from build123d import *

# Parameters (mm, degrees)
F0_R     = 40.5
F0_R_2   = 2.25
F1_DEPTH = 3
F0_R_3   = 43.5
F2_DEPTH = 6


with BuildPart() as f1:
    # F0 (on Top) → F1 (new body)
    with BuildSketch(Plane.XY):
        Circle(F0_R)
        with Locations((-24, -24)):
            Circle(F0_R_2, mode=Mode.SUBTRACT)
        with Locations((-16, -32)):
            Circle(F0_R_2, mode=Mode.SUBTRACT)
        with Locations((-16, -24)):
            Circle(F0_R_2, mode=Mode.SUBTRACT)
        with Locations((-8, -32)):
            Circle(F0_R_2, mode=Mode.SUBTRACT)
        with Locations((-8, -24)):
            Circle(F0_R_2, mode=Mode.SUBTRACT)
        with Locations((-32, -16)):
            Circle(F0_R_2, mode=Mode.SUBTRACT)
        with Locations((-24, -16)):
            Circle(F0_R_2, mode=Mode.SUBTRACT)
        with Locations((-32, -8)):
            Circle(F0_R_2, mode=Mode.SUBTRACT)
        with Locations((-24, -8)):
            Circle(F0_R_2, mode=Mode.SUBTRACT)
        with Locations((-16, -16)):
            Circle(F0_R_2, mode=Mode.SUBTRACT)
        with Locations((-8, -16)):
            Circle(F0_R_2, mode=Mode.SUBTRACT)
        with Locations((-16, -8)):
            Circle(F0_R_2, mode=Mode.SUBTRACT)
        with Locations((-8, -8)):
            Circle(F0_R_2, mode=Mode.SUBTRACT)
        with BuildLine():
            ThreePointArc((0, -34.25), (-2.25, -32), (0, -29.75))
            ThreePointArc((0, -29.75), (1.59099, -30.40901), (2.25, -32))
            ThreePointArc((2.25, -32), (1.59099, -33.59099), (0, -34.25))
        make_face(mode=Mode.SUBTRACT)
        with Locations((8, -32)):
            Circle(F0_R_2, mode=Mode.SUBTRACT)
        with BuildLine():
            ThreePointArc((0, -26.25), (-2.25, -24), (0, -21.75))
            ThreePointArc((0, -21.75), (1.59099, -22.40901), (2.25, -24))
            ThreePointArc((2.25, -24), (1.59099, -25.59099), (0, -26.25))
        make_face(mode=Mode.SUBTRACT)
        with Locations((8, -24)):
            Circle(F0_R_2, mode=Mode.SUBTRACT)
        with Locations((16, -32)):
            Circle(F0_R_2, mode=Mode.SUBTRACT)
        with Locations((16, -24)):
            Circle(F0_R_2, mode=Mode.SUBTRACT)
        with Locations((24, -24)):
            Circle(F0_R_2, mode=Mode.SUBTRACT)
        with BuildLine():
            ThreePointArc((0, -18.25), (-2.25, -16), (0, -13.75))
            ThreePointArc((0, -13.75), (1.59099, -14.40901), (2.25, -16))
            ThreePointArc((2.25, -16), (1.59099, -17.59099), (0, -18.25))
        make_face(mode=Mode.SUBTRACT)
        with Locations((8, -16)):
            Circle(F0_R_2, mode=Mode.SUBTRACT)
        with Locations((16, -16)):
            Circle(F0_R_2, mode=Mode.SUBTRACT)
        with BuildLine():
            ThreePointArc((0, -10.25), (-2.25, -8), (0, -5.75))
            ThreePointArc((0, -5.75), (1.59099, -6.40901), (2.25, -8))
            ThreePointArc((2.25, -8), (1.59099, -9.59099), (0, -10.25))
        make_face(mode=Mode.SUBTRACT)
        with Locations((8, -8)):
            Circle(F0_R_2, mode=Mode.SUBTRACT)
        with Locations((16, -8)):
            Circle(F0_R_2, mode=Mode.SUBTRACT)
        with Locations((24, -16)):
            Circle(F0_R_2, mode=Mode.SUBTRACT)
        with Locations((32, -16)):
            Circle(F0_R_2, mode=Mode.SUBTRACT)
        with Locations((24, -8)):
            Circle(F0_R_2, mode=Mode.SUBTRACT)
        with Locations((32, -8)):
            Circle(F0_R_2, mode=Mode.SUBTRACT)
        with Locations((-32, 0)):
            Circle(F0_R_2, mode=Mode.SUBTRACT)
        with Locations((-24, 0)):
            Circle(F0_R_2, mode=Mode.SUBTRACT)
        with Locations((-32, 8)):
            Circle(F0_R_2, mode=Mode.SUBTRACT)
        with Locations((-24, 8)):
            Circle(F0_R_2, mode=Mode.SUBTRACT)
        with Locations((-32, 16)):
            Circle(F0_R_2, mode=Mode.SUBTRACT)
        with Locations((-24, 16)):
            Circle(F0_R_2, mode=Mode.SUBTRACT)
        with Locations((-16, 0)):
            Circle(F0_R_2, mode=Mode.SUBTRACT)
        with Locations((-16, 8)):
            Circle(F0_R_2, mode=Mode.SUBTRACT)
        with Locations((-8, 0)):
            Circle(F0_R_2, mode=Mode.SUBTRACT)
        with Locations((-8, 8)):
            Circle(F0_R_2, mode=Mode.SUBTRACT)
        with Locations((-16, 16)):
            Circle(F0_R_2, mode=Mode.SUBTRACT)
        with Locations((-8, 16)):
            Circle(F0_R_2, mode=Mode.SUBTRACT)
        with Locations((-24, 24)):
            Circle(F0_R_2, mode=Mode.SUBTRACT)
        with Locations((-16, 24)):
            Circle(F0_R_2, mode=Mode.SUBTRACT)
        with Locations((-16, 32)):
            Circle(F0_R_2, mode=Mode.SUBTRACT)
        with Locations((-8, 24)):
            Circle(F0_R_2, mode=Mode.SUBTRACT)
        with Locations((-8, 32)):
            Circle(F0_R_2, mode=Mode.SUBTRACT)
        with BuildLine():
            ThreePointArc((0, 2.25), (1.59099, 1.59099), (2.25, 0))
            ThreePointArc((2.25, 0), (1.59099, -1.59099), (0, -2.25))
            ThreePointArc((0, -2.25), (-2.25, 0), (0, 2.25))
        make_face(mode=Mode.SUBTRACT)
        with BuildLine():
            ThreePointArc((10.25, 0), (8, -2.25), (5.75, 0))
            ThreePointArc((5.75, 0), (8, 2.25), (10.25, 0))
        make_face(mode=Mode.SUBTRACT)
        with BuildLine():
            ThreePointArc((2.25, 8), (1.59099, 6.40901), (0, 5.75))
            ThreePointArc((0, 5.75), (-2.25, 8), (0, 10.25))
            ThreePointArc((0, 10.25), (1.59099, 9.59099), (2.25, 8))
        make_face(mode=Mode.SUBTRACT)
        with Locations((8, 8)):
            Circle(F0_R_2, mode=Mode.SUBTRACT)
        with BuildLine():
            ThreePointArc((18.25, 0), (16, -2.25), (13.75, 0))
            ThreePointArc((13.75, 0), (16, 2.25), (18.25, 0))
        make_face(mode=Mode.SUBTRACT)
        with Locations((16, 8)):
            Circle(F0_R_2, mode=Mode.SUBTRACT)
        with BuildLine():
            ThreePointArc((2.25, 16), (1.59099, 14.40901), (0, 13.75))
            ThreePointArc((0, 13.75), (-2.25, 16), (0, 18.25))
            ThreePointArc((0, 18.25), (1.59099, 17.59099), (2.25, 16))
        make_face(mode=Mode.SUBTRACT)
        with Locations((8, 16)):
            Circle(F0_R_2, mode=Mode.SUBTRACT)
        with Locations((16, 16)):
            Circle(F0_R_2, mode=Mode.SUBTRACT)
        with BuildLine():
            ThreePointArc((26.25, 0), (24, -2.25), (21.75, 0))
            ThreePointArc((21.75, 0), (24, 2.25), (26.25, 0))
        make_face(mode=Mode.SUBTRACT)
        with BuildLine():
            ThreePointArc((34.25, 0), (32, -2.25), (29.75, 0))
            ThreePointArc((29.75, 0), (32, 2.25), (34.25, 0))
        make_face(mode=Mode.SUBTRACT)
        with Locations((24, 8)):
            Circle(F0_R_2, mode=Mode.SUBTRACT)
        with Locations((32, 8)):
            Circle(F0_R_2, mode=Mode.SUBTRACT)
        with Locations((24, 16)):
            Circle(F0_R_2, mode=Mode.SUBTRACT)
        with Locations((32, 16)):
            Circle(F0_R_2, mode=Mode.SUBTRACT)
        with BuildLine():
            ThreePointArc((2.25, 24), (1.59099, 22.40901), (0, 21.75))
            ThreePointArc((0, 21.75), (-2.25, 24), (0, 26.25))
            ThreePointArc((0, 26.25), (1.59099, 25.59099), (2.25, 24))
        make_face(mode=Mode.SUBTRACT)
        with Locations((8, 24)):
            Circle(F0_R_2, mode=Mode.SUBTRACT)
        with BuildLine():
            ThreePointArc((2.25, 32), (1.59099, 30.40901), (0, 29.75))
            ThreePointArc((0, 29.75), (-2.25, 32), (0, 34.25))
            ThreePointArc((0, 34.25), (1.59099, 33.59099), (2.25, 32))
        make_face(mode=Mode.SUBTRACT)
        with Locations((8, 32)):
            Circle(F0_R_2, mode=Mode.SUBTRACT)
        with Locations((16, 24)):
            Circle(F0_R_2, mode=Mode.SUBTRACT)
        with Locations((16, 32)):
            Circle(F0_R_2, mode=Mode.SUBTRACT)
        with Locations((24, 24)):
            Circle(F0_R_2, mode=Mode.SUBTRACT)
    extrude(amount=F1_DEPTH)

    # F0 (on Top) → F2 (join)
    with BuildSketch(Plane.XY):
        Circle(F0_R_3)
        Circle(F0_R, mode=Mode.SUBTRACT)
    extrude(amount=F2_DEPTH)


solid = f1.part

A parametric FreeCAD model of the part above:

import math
import FreeCAD as App
import Part
import Sketcher

doc = App.newDocument("Part")
body = doc.addObject("PartDesign::Body", "Body")

# Sketch on XY plane
sketch1 = doc.addObject("Sketcher::SketchObject", "Sketch")
body.addObject(sketch1)
sketch1.AttachmentSupport = (doc.XY_Plane, [""])
sketch1.MapMode = "FlatFace"
sketch1.addGeometry(Part.Circle(App.Vector(0, 0, 0), App.Vector(0, 0, 1), 40.5), False)
sketch1.addGeometry(Part.Circle(App.Vector(-24, -24, 0), App.Vector(0, 0, 1), 2.25), False)
sketch1.addGeometry(Part.Circle(App.Vector(-16, -32, 0), App.Vector(0, 0, 1), 2.25), False)
sketch1.addGeometry(Part.Circle(App.Vector(-8, -32, 0), App.Vector(0, 0, 1), 2.25), False)
sketch1.addGeometry(Part.Circle(App.Vector(-16, -24, 0), App.Vector(0, 0, 1), 2.25), False)
sketch1.addGeometry(Part.Circle(App.Vector(-8, -24, 0), App.Vector(0, 0, 1), 2.25), False)
sketch1.addGeometry(Part.Circle(App.Vector(-32, -16, 0), App.Vector(0, 0, 1), 2.25), False)
sketch1.addGeometry(Part.Circle(App.Vector(-24, -16, 0), App.Vector(0, 0, 1), 2.25), False)
sketch1.addGeometry(Part.Circle(App.Vector(-32, -8, 0), App.Vector(0, 0, 1), 2.25), False)
sketch1.addGeometry(Part.Circle(App.Vector(-24, -8, 0), App.Vector(0, 0, 1), 2.25), False)
sketch1.addGeometry(Part.Circle(App.Vector(-16, -16, 0), App.Vector(0, 0, 1), 2.25), False)
sketch1.addGeometry(Part.Circle(App.Vector(-8, -16, 0), App.Vector(0, 0, 1), 2.25), False)
sketch1.addGeometry(Part.Circle(App.Vector(-16, -8, 0), App.Vector(0, 0, 1), 2.25), False)
sketch1.addGeometry(Part.Circle(App.Vector(-8, -8, 0), App.Vector(0, 0, 1), 2.25), False)
sketch1.addGeometry(Part.ArcOfCircle(Part.Circle(App.Vector(-0.000001, -31.999999, 0), App.Vector(0, 0, 1), 2.250001), math.radians(-89.999978), math.radians(-0.000022)), False)
sketch1.addGeometry(Part.ArcOfCircle(Part.Circle(App.Vector(0, -32, 0), App.Vector(0, 0, 1), 2.25), math.radians(90), math.radians(270)), False)
sketch1.addGeometry(Part.ArcOfCircle(Part.Circle(App.Vector(-0.000001, -32.000001, 0), App.Vector(0, 0, 1), 2.250001), math.radians(0.000022), math.radians(89.999978)), False)
sketch1.addGeometry(Part.Circle(App.Vector(8, -32, 0), App.Vector(0, 0, 1), 2.25), False)
sketch1.addGeometry(Part.Circle(App.Vector(16, -32, 0), App.Vector(0, 0, 1), 2.25), False)
sketch1.addGeometry(Part.ArcOfCircle(Part.Circle(App.Vector(-0.000001, -23.999999, 0), App.Vector(0, 0, 1), 2.250001), math.radians(-89.999978), math.radians(-0.000022)), False)
sketch1.addGeometry(Part.ArcOfCircle(Part.Circle(App.Vector(0, -24, 0), App.Vector(0, 0, 1), 2.25), math.radians(90), math.radians(270)), False)
sketch1.addGeometry(Part.ArcOfCircle(Part.Circle(App.Vector(-0.000001, -24.000001, 0), App.Vector(0, 0, 1), 2.250001), math.radians(0.000022), math.radians(89.999978)), False)
sketch1.addGeometry(Part.Circle(App.Vector(8, -24, 0), App.Vector(0, 0, 1), 2.25), False)
sketch1.addGeometry(Part.Circle(App.Vector(16, -24, 0), App.Vector(0, 0, 1), 2.25), False)
sketch1.addGeometry(Part.Circle(App.Vector(24, -24, 0), App.Vector(0, 0, 1), 2.25), False)
sketch1.addGeometry(Part.ArcOfCircle(Part.Circle(App.Vector(-0.000001, -15.999999, 0), App.Vector(0, 0, 1), 2.250001), math.radians(-89.999978), math.radians(-0.000022)), False)
sketch1.addGeometry(Part.ArcOfCircle(Part.Circle(App.Vector(0, -16, 0), App.Vector(0, 0, 1), 2.25), math.radians(90), math.radians(270)), False)
sketch1.addGeometry(Part.ArcOfCircle(Part.Circle(App.Vector(-0.000001, -16.000001, 0), App.Vector(0, 0, 1), 2.250001), math.radians(0.000022), math.radians(89.999978)), False)
sketch1.addGeometry(Part.Circle(App.Vector(8, -16, 0), App.Vector(0, 0, 1), 2.25), False)
sketch1.addGeometry(Part.Circle(App.Vector(16, -16, 0), App.Vector(0, 0, 1), 2.25), False)
sketch1.addGeometry(Part.ArcOfCircle(Part.Circle(App.Vector(-0.000001, -7.999999, 0), App.Vector(0, 0, 1), 2.250001), math.radians(-89.999978), math.radians(-0.000022)), False)
sketch1.addGeometry(Part.ArcOfCircle(Part.Circle(App.Vector(0, -8, 0), App.Vector(0, 0, 1), 2.25), math.radians(90), math.radians(270)), False)
sketch1.addGeometry(Part.ArcOfCircle(Part.Circle(App.Vector(-0.000001, -8.000001, 0), App.Vector(0, 0, 1), 2.250001), math.radians(0.000022), math.radians(89.999978)), False)
sketch1.addGeometry(Part.Circle(App.Vector(8, -8, 0), App.Vector(0, 0, 1), 2.25), False)
sketch1.addGeometry(Part.Circle(App.Vector(16, -8, 0), App.Vector(0, 0, 1), 2.25), False)
sketch1.addGeometry(Part.Circle(App.Vector(24, -16, 0), App.Vector(0, 0, 1), 2.25), False)
sketch1.addGeometry(Part.Circle(App.Vector(32, -16, 0), App.Vector(0, 0, 1), 2.25), False)
sketch1.addGeometry(Part.Circle(App.Vector(24, -8, 0), App.Vector(0, 0, 1), 2.25), False)
sketch1.addGeometry(Part.Circle(App.Vector(32, -8, 0), App.Vector(0, 0, 1), 2.25), False)
sketch1.addGeometry(Part.Circle(App.Vector(-32, 0, 0), App.Vector(0, 0, 1), 2.25), False)
sketch1.addGeometry(Part.Circle(App.Vector(-32, 8, 0), App.Vector(0, 0, 1), 2.25), False)
sketch1.addGeometry(Part.Circle(App.Vector(-24, 0, 0), App.Vector(0, 0, 1), 2.25), False)
sketch1.addGeometry(Part.Circle(App.Vector(-24, 8, 0), App.Vector(0, 0, 1), 2.25), False)
sketch1.addGeometry(Part.Circle(App.Vector(-32, 16, 0), App.Vector(0, 0, 1), 2.25), False)
sketch1.addGeometry(Part.Circle(App.Vector(-24, 16, 0), App.Vector(0, 0, 1), 2.25), False)
sketch1.addGeometry(Part.Circle(App.Vector(-16, 0, 0), App.Vector(0, 0, 1), 2.25), False)
sketch1.addGeometry(Part.Circle(App.Vector(-16, 8, 0), App.Vector(0, 0, 1), 2.25), False)
sketch1.addGeometry(Part.Circle(App.Vector(-8, 0, 0), App.Vector(0, 0, 1), 2.25), False)
sketch1.addGeometry(Part.Circle(App.Vector(-8, 8, 0), App.Vector(0, 0, 1), 2.25), False)
sketch1.addGeometry(Part.Circle(App.Vector(-16, 16, 0), App.Vector(0, 0, 1), 2.25), False)
sketch1.addGeometry(Part.Circle(App.Vector(-8, 16, 0), App.Vector(0, 0, 1), 2.25), False)
sketch1.addGeometry(Part.Circle(App.Vector(-24, 24, 0), App.Vector(0, 0, 1), 2.25), False)
sketch1.addGeometry(Part.Circle(App.Vector(-16, 24, 0), App.Vector(0, 0, 1), 2.25), False)
sketch1.addGeometry(Part.Circle(App.Vector(-8, 24, 0), App.Vector(0, 0, 1), 2.25), False)
sketch1.addGeometry(Part.Circle(App.Vector(-16, 32, 0), App.Vector(0, 0, 1), 2.25), False)
sketch1.addGeometry(Part.Circle(App.Vector(-8, 32, 0), App.Vector(0, 0, 1), 2.25), False)
sketch1.addGeometry(Part.ArcOfCircle(Part.Circle(App.Vector(0, 0, 0), App.Vector(0, 0, 1), 2.25), math.radians(90), math.radians(270)), False)
sketch1.addGeometry(Part.ArcOfCircle(Part.Circle(App.Vector(-0.000001, -0.000001, 0), App.Vector(0, 0, 1), 2.250001), math.radians(0.000022), math.radians(89.999978)), False)
sketch1.addGeometry(Part.ArcOfCircle(Part.Circle(App.Vector(-0.000001, 0.000001, 0), App.Vector(0, 0, 1), 2.250001), math.radians(-89.999978), math.radians(-0.000022)), False)
sketch1.addGeometry(Part.Circle(App.Vector(8, 0, 0), App.Vector(0, 0, 1), 2.25), False)
sketch1.addGeometry(Part.ArcOfCircle(Part.Circle(App.Vector(-0.000001, 7.999999, 0), App.Vector(0, 0, 1), 2.250001), math.radians(0.000022), math.radians(89.999978)), False)
sketch1.addGeometry(Part.ArcOfCircle(Part.Circle(App.Vector(-0.000001, 8.000001, 0), App.Vector(0, 0, 1), 2.250001), math.radians(-89.999978), math.radians(-0.000022)), False)
sketch1.addGeometry(Part.ArcOfCircle(Part.Circle(App.Vector(0, 8, 0), App.Vector(0, 0, 1), 2.25), math.radians(90), math.radians(270)), False)
sketch1.addGeometry(Part.Circle(App.Vector(8, 8, 0), App.Vector(0, 0, 1), 2.25), False)
sketch1.addGeometry(Part.Circle(App.Vector(16, 0, 0), App.Vector(0, 0, 1), 2.25), False)
sketch1.addGeometry(Part.Circle(App.Vector(16, 8, 0), App.Vector(0, 0, 1), 2.25), False)
sketch1.addGeometry(Part.ArcOfCircle(Part.Circle(App.Vector(-0.000001, 15.999999, 0), App.Vector(0, 0, 1), 2.250001), math.radians(0.000022), math.radians(89.999978)), False)
sketch1.addGeometry(Part.ArcOfCircle(Part.Circle(App.Vector(-0.000001, 16.000001, 0), App.Vector(0, 0, 1), 2.250001), math.radians(-89.999978), math.radians(-0.000022)), False)
sketch1.addGeometry(Part.ArcOfCircle(Part.Circle(App.Vector(0, 16, 0), App.Vector(0, 0, 1), 2.25), math.radians(90), math.radians(270)), False)
sketch1.addGeometry(Part.Circle(App.Vector(8, 16, 0), App.Vector(0, 0, 1), 2.25), False)
sketch1.addGeometry(Part.Circle(App.Vector(16, 16, 0), App.Vector(0, 0, 1), 2.25), False)
sketch1.addGeometry(Part.Circle(App.Vector(24, 0, 0), App.Vector(0, 0, 1), 2.25), False)
sketch1.addGeometry(Part.Circle(App.Vector(24, 8, 0), App.Vector(0, 0, 1), 2.25), False)
sketch1.addGeometry(Part.Circle(App.Vector(32, 0, 0), App.Vector(0, 0, 1), 2.25), False)
sketch1.addGeometry(Part.Circle(App.Vector(32, 8, 0), App.Vector(0, 0, 1), 2.25), False)
sketch1.addGeometry(Part.Circle(App.Vector(24, 16, 0), App.Vector(0, 0, 1), 2.25), False)
sketch1.addGeometry(Part.Circle(App.Vector(32, 16, 0), App.Vector(0, 0, 1), 2.25), False)
sketch1.addGeometry(Part.ArcOfCircle(Part.Circle(App.Vector(-0.000001, 23.999999, 0), App.Vector(0, 0, 1), 2.250001), math.radians(0.000022), math.radians(89.999978)), False)
sketch1.addGeometry(Part.ArcOfCircle(Part.Circle(App.Vector(-0.000001, 24.000001, 0), App.Vector(0, 0, 1), 2.250001), math.radians(-89.999978), math.radians(-0.000022)), False)
sketch1.addGeometry(Part.ArcOfCircle(Part.Circle(App.Vector(0, 24, 0), App.Vector(0, 0, 1), 2.25), math.radians(90), math.radians(270)), False)
sketch1.addGeometry(Part.Circle(App.Vector(8, 24, 0), App.Vector(0, 0, 1), 2.25), False)
sketch1.addGeometry(Part.Circle(App.Vector(16, 24, 0), App.Vector(0, 0, 1), 2.25), False)
sketch1.addGeometry(Part.ArcOfCircle(Part.Circle(App.Vector(-0.000001, 31.999999, 0), App.Vector(0, 0, 1), 2.250001), math.radians(0.000022), math.radians(89.999978)), False)
sketch1.addGeometry(Part.ArcOfCircle(Part.Circle(App.Vector(-0.000001, 32.000001, 0), App.Vector(0, 0, 1), 2.250001), math.radians(-89.999978), math.radians(-0.000022)), False)
sketch1.addGeometry(Part.ArcOfCircle(Part.Circle(App.Vector(0, 32, 0), App.Vector(0, 0, 1), 2.25), math.radians(90), math.radians(270)), False)
sketch1.addGeometry(Part.Circle(App.Vector(8, 32, 0), App.Vector(0, 0, 1), 2.25), False)
sketch1.addGeometry(Part.Circle(App.Vector(16, 32, 0), App.Vector(0, 0, 1), 2.25), False)
sketch1.addGeometry(Part.Circle(App.Vector(24, 24, 0), App.Vector(0, 0, 1), 2.25), False)
sketch1.addConstraint(Sketcher.Constraint("Tangent", 14, 1, 15, 2))
sketch1.addConstraint(Sketcher.Constraint("Tangent", 15, 1, 16, 2))
sketch1.addConstraint(Sketcher.Constraint("Tangent", 16, 1, 14, 2))
sketch1.addConstraint(Sketcher.Constraint("Tangent", 19, 1, 20, 2))
sketch1.addConstraint(Sketcher.Constraint("Tangent", 20, 1, 21, 2))
sketch1.addConstraint(Sketcher.Constraint("Tangent", 21, 1, 19, 2))
sketch1.addConstraint(Sketcher.Constraint("Tangent", 25, 1, 26, 2))
sketch1.addConstraint(Sketcher.Constraint("Tangent", 26, 1, 27, 2))
sketch1.addConstraint(Sketcher.Constraint("Tangent", 27, 1, 25, 2))
sketch1.addConstraint(Sketcher.Constraint("Tangent", 30, 1, 31, 2))
sketch1.addConstraint(Sketcher.Constraint("Tangent", 31, 1, 32, 2))
sketch1.addConstraint(Sketcher.Constraint("Tangent", 32, 1, 30, 2))
sketch1.addConstraint(Sketcher.Constraint("Tangent", 56, 1, 57, 2))
sketch1.addConstraint(Sketcher.Constraint("Tangent", 57, 1, 58, 2))
sketch1.addConstraint(Sketcher.Constraint("Tangent", 58, 1, 56, 2))
sketch1.addConstraint(Sketcher.Constraint("Tangent", 60, 1, 61, 2))
sketch1.addConstraint(Sketcher.Constraint("Tangent", 61, 1, 62, 2))
sketch1.addConstraint(Sketcher.Constraint("Tangent", 62, 1, 60, 2))
sketch1.addConstraint(Sketcher.Constraint("Tangent", 66, 1, 67, 2))
sketch1.addConstraint(Sketcher.Constraint("Tangent", 67, 1, 68, 2))
sketch1.addConstraint(Sketcher.Constraint("Tangent", 68, 1, 66, 2))
sketch1.addConstraint(Sketcher.Constraint("Tangent", 77, 1, 78, 2))
sketch1.addConstraint(Sketcher.Constraint("Tangent", 78, 1, 79, 2))
sketch1.addConstraint(Sketcher.Constraint("Tangent", 79, 1, 77, 2))
sketch1.addConstraint(Sketcher.Constraint("Tangent", 82, 1, 83, 2))
sketch1.addConstraint(Sketcher.Constraint("Tangent", 83, 1, 84, 2))
sketch1.addConstraint(Sketcher.Constraint("Tangent", 84, 1, 82, 2))
sketch1.addConstraint(Sketcher.Constraint("Coincident", 0, 3, -1, 1))
sketch1.addConstraint(Sketcher.Constraint("Coincident", 56, 3, -1, 1))
sketch1.addConstraint(Sketcher.Constraint("Equal", 1, 2))
sketch1.addConstraint(Sketcher.Constraint("Equal", 2, 3))
sketch1.addConstraint(Sketcher.Constraint("Equal", 3, 4))
sketch1.addConstraint(Sketcher.Constraint("Equal", 4, 5))
sketch1.addConstraint(Sketcher.Constraint("Equal", 5, 6))
sketch1.addConstraint(Sketcher.Constraint("Equal", 6, 7))
sketch1.addConstraint(Sketcher.Constraint("Equal", 7, 8))
sketch1.addConstraint(Sketcher.Constraint("Equal", 8, 9))
sketch1.addConstraint(Sketcher.Constraint("Equal", 9, 10))
sketch1.addConstraint(Sketcher.Constraint("Equal", 10, 11))
sketch1.addConstraint(Sketcher.Constraint("Equal", 11, 12))
sketch1.addConstraint(Sketcher.Constraint("Equal", 12, 13))
sketch1.addConstraint(Sketcher.Constraint("Equal", 13, 14))
sketch1.addConstraint(Sketcher.Constraint("Equal", 16, 17))
sketch1.addConstraint(Sketcher.Constraint("Equal", 17, 18))
sketch1.addConstraint(Sketcher.Constraint("Equal", 18, 19))
sketch1.addConstraint(Sketcher.Constraint("Equal", 21, 22))
sketch1.addConstraint(Sketcher.Constraint("Equal", 22, 23))
sketch1.addConstraint(Sketcher.Constraint("Equal", 23, 24))
sketch1.addConstraint(Sketcher.Constraint("Equal", 24, 25))
sketch1.addConstraint(Sketcher.Constraint("Equal", 27, 28))
sketch1.addConstraint(Sketcher.Constraint("Equal", 28, 29))
sketch1.addConstraint(Sketcher.Constraint("Equal", 29, 30))
sketch1.addConstraint(Sketcher.Constraint("Equal", 32, 33))
sketch1.addConstraint(Sketcher.Constraint("Equal", 33, 34))
sketch1.addConstraint(Sketcher.Constraint("Equal", 34, 35))
sketch1.addConstraint(Sketcher.Constraint("Equal", 35, 36))
sketch1.addConstraint(Sketcher.Constraint("Equal", 36, 37))
sketch1.addConstraint(Sketcher.Constraint("Equal", 37, 38))
sketch1.addConstraint(Sketcher.Constraint("Equal", 38, 39))
sketch1.addConstraint(Sketcher.Constraint("Equal", 39, 40))
sketch1.addConstraint(Sketcher.Constraint("Equal", 40, 41))
sketch1.addConstraint(Sketcher.Constraint("Equal", 41, 42))
sketch1.addConstraint(Sketcher.Constraint("Equal", 42, 43))
sketch1.addConstraint(Sketcher.Constraint("Equal", 43, 44))
sketch1.addConstraint(Sketcher.Constraint("Equal", 44, 45))
sketch1.addConstraint(Sketcher.Constraint("Equal", 45, 46))
sketch1.addConstraint(Sketcher.Constraint("Equal", 46, 47))
sketch1.addConstraint(Sketcher.Constraint("Equal", 47, 48))
sketch1.addConstraint(Sketcher.Constraint("Equal", 48, 49))
sketch1.addConstraint(Sketcher.Constraint("Equal", 49, 50))
sketch1.addConstraint(Sketcher.Constraint("Equal", 50, 51))
sketch1.addConstraint(Sketcher.Constraint("Equal", 51, 52))
sketch1.addConstraint(Sketcher.Constraint("Equal", 52, 53))
sketch1.addConstraint(Sketcher.Constraint("Equal", 53, 54))
sketch1.addConstraint(Sketcher.Constraint("Equal", 54, 55))
sketch1.addConstraint(Sketcher.Constraint("Equal", 55, 56))
sketch1.addConstraint(Sketcher.Constraint("Equal", 58, 59))
sketch1.addConstraint(Sketcher.Constraint("Equal", 59, 60))
sketch1.addConstraint(Sketcher.Constraint("Equal", 62, 63))
sketch1.addConstraint(Sketcher.Constraint("Equal", 63, 64))
sketch1.addConstraint(Sketcher.Constraint("Equal", 64, 65))
sketch1.addConstraint(Sketcher.Constraint("Equal", 65, 66))
sketch1.addConstraint(Sketcher.Constraint("Equal", 68, 69))
sketch1.addConstraint(Sketcher.Constraint("Equal", 69, 70))
sketch1.addConstraint(Sketcher.Constraint("Equal", 70, 71))
sketch1.addConstraint(Sketcher.Constraint("Equal", 71, 72))
sketch1.addConstraint(Sketcher.Constraint("Equal", 72, 73))
sketch1.addConstraint(Sketcher.Constraint("Equal", 73, 74))
sketch1.addConstraint(Sketcher.Constraint("Equal", 74, 75))
sketch1.addConstraint(Sketcher.Constraint("Equal", 75, 76))
sketch1.addConstraint(Sketcher.Constraint("Equal", 76, 77))
sketch1.addConstraint(Sketcher.Constraint("Equal", 79, 80))
sketch1.addConstraint(Sketcher.Constraint("Equal", 80, 81))
sketch1.addConstraint(Sketcher.Constraint("Equal", 81, 82))
sketch1.addConstraint(Sketcher.Constraint("Equal", 84, 85))
sketch1.addConstraint(Sketcher.Constraint("Equal", 85, 86))
sketch1.addConstraint(Sketcher.Constraint("Equal", 86, 87))
sketch1.addConstraint(Sketcher.Constraint("Symmetric", 38, 3, 40, 3, -1, 1))
sketch1.addConstraint(Sketcher.Constraint("Symmetric", 37, 3, 42, 3, -1, 1))
sketch1.addConstraint(Sketcher.Constraint("Symmetric", 36, 3, 43, 3, -1, 1))
sketch1.addConstraint(Sketcher.Constraint("Symmetric", 35, 3, 44, 3, -1, 1))
sketch1.addConstraint(Sketcher.Constraint("Symmetric", 34, 3, 46, 3, -1, 1))
sketch1.addConstraint(Sketcher.Constraint("Symmetric", 33, 3, 48, 3, -1, 1))
sketch1.addConstraint(Sketcher.Constraint("Symmetric", 29, 3, 49, 3, -1, 1))
sketch1.addConstraint(Sketcher.Constraint("Symmetric", 28, 3, 50, 3, -1, 1))
sketch1.addConstraint(Sketcher.Constraint("Symmetric", 24, 3, 51, 3, -1, 1))
sketch1.addConstraint(Sketcher.Constraint("Symmetric", 23, 3, 52, 3, -1, 1))
sketch1.addConstraint(Sketcher.Constraint("Symmetric", 22, 3, 53, 3, -1, 1))
sketch1.addConstraint(Sketcher.Constraint("Symmetric", 18, 3, 54, 3, -1, 1))
sketch1.addConstraint(Sketcher.Constraint("Symmetric", 17, 3, 55, 3, -1, 1))
sketch1.addConstraint(Sketcher.Constraint("Symmetric", 47, 3, 59, 3, -1, 1))
sketch1.addConstraint(Sketcher.Constraint("Symmetric", 30, 3, 60, 3, -1, 1))
sketch1.addConstraint(Sketcher.Constraint("Symmetric", 13, 3, 63, 3, -1, 1))
sketch1.addConstraint(Sketcher.Constraint("Symmetric", 45, 3, 64, 3, -1, 1))
sketch1.addConstraint(Sketcher.Constraint("Symmetric", 12, 3, 65, 3, -1, 1))
sketch1.addConstraint(Sketcher.Constraint("Symmetric", 25, 3, 66, 3, -1, 1))
sketch1.addConstraint(Sketcher.Constraint("Symmetric", 11, 3, 69, 3, -1, 1))
sketch1.addConstraint(Sketcher.Constraint("Symmetric", 10, 3, 70, 3, -1, 1))
sketch1.addConstraint(Sketcher.Constraint("Symmetric", 41, 3, 71, 3, -1, 1))
sketch1.addConstraint(Sketcher.Constraint("Symmetric", 9, 3, 72, 3, -1, 1))
sketch1.addConstraint(Sketcher.Constraint("Symmetric", 39, 3, 73, 3, -1, 1))
sketch1.addConstraint(Sketcher.Constraint("Symmetric", 8, 3, 74, 3, -1, 1))
sketch1.addConstraint(Sketcher.Constraint("Symmetric", 7, 3, 75, 3, -1, 1))
sketch1.addConstraint(Sketcher.Constraint("Symmetric", 6, 3, 76, 3, -1, 1))
sketch1.addConstraint(Sketcher.Constraint("Symmetric", 19, 3, 77, 3, -1, 1))
sketch1.addConstraint(Sketcher.Constraint("Symmetric", 5, 3, 80, 3, -1, 1))
sketch1.addConstraint(Sketcher.Constraint("Symmetric", 4, 3, 81, 3, -1, 1))
sketch1.addConstraint(Sketcher.Constraint("Symmetric", 14, 3, 82, 3, -1, 1))
sketch1.addConstraint(Sketcher.Constraint("Symmetric", 3, 3, 85, 3, -1, 1))
sketch1.addConstraint(Sketcher.Constraint("Symmetric", 2, 3, 86, 3, -1, 1))
sketch1.addConstraint(Sketcher.Constraint("Symmetric", 1, 3, 87, 3, -1, 1))
sketch1.addConstraint(Sketcher.Constraint("Symmetric", 3, 3, 17, 3, -2))
sketch1.addConstraint(Sketcher.Constraint("Symmetric", 2, 3, 18, 3, -2))
sketch1.addConstraint(Sketcher.Constraint("Symmetric", 5, 3, 22, 3, -2))
sketch1.addConstraint(Sketcher.Constraint("Symmetric", 4, 3, 23, 3, -2))
sketch1.addConstraint(Sketcher.Constraint("Symmetric", 1, 3, 24, 3, -2))
sketch1.addConstraint(Sketcher.Constraint("Symmetric", 11, 3, 28, 3, -2))
sketch1.addConstraint(Sketcher.Constraint("Symmetric", 10, 3, 29, 3, -2))
sketch1.addConstraint(Sketcher.Constraint("Symmetric", 13, 3, 33, 3, -2))
sketch1.addConstraint(Sketcher.Constraint("Symmetric", 12, 3, 34, 3, -2))
sketch1.addConstraint(Sketcher.Constraint("Symmetric", 7, 3, 35, 3, -2))
sketch1.addConstraint(Sketcher.Constraint("Symmetric", 6, 3, 36, 3, -2))
sketch1.addConstraint(Sketcher.Constraint("Symmetric", 9, 3, 37, 3, -2))
sketch1.addConstraint(Sketcher.Constraint("Symmetric", 8, 3, 38, 3, -2))
sketch1.addConstraint(Sketcher.Constraint("Symmetric", 32, 1, 60, 1, -1))
sketch1.addConstraint(Sketcher.Constraint("Symmetric", 27, 1, 66, 1, -1))
sketch1.addConstraint(Sketcher.Constraint("Symmetric", 21, 1, 77, 1, -1))
sketch1.addConstraint(Sketcher.Constraint("Symmetric", 16, 1, 82, 1, -1))
sketch1.addConstraint(Sketcher.Constraint("PointOnObject", 39, 3, -1))
sketch1.addConstraint(Sketcher.Constraint("PointOnObject", 41, 3, -1))
sketch1.addConstraint(Sketcher.Constraint("PointOnObject", 45, 3, -1))
sketch1.addConstraint(Sketcher.Constraint("PointOnObject", 47, 3, -1))
sketch1.addConstraint(Sketcher.Constraint("PointOnObject", 14, 1, -2))
sketch1.addConstraint(Sketcher.Constraint("PointOnObject", 15, 1, -2))
sketch1.addConstraint(Sketcher.Constraint("PointOnObject", 19, 1, -2))
sketch1.addConstraint(Sketcher.Constraint("PointOnObject", 20, 1, -2))
sketch1.addConstraint(Sketcher.Constraint("PointOnObject", 25, 1, -2))
sketch1.addConstraint(Sketcher.Constraint("PointOnObject", 26, 1, -2))
sketch1.addConstraint(Sketcher.Constraint("PointOnObject", 30, 1, -2))
sketch1.addConstraint(Sketcher.Constraint("PointOnObject", 31, 1, -2))
sketch1.addConstraint(Sketcher.Constraint("PointOnObject", 56, 1, -2))
sketch1.addConstraint(Sketcher.Constraint("PointOnObject", 57, 1, -1))
sketch1.addConstraint(Sketcher.Constraint("PointOnObject", 58, 1, -2))
sketch1.addConstraint(Sketcher.Constraint("PointOnObject", 61, 1, -2))
sketch1.addConstraint(Sketcher.Constraint("PointOnObject", 62, 1, -2))
sketch1.addConstraint(Sketcher.Constraint("PointOnObject", 67, 1, -2))
sketch1.addConstraint(Sketcher.Constraint("PointOnObject", 68, 1, -2))
sketch1.addConstraint(Sketcher.Constraint("PointOnObject", 78, 1, -2))
sketch1.addConstraint(Sketcher.Constraint("PointOnObject", 79, 1, -2))
sketch1.addConstraint(Sketcher.Constraint("PointOnObject", 83, 1, -2))
sketch1.addConstraint(Sketcher.Constraint("PointOnObject", 84, 1, -2))
sketch1.addConstraint(Sketcher.Constraint("Horizontal", 2, 3, 3, 3))
sketch1.addConstraint(Sketcher.Constraint("Horizontal", 1, 3, 4, 3))
sketch1.addConstraint(Sketcher.Constraint("Horizontal", 4, 3, 5, 3))
sketch1.addConstraint(Sketcher.Constraint("Horizontal", 6, 3, 7, 3))
sketch1.addConstraint(Sketcher.Constraint("Horizontal", 8, 3, 9, 3))
sketch1.addConstraint(Sketcher.Constraint("Horizontal", 7, 3, 10, 3))
sketch1.addConstraint(Sketcher.Constraint("Horizontal", 10, 3, 11, 3))
sketch1.addConstraint(Sketcher.Constraint("Horizontal", 9, 3, 12, 3))
sketch1.addConstraint(Sketcher.Constraint("Horizontal", 12, 3, 13, 3))
sketch1.addConstraint(Sketcher.Constraint("Horizontal", 3, 3, 14, 3))
sketch1.addConstraint(Sketcher.Constraint("Horizontal", 5, 3, 19, 3))
sketch1.addConstraint(Sketcher.Constraint("Horizontal", 11, 3, 25, 3))
sketch1.addConstraint(Sketcher.Constraint("Horizontal", 13, 3, 30, 3))
sketch1.addConstraint(Sketcher.Constraint("Horizontal", 18, 3, 16, 1))
sketch1.addConstraint(Sketcher.Constraint("Horizontal", 24, 3, 21, 1))
sketch1.addConstraint(Sketcher.Constraint("Horizontal", 36, 3, 27, 1))
sketch1.addConstraint(Sketcher.Constraint("Horizontal", 38, 3, 32, 1))
sketch1.addConstraint(Sketcher.Constraint("Vertical", 2, 3, 4, 3))
sketch1.addConstraint(Sketcher.Constraint("Vertical", 3, 3, 5, 3))
sketch1.addConstraint(Sketcher.Constraint("Vertical", 1, 3, 7, 3))
sketch1.addConstraint(Sketcher.Constraint("Vertical", 6, 3, 8, 3))
sketch1.addConstraint(Sketcher.Constraint("Vertical", 7, 3, 9, 3))
sketch1.addConstraint(Sketcher.Constraint("Vertical", 4, 3, 10, 3))
sketch1.addConstraint(Sketcher.Constraint("Vertical", 5, 3, 11, 3))
sketch1.addConstraint(Sketcher.Constraint("Vertical", 10, 3, 12, 3))
sketch1.addConstraint(Sketcher.Constraint("Vertical", 11, 3, 13, 3))
sketch1.addConstraint(Sketcher.Constraint("Vertical", 8, 3, 39, 3))
sketch1.addConstraint(Sketcher.Constraint("Vertical", 9, 3, 41, 3))
sketch1.addConstraint(Sketcher.Constraint("Vertical", 12, 3, 45, 3))
sketch1.addConstraint(Sketcher.Constraint("Vertical", 13, 3, 47, 3))
sketch1.addConstraint(Sketcher.Constraint("Diameter", 0, 81.0))
sketch1.addConstraint(Sketcher.Constraint("Diameter", 1, 4.5))
sketch1.addConstraint(Sketcher.Constraint("DistanceX", 1, 3, -1, 1, 24.0))
sketch1.addConstraint(Sketcher.Constraint("DistanceY", 1, 3, -1, 1, 24.0))
sketch1.addConstraint(Sketcher.Constraint("DistanceX", 2, 3, -1, 1, 16.0))
sketch1.addConstraint(Sketcher.Constraint("DistanceY", 2, 3, -1, 1, 32.0))
sketch1.addConstraint(Sketcher.Constraint("DistanceX", 3, 3, -1, 1, 8.0))
sketch1.addConstraint(Sketcher.Constraint("DistanceX", 6, 3, -1, 1, 32.0))
sketch1.addConstraint(Sketcher.Constraint("DistanceY", 6, 3, -1, 1, 16.0))
sketch1.addConstraint(Sketcher.Constraint("DistanceY", 8, 3, -1, 1, 8.0))
pad1 = doc.addObject("PartDesign::Pad", "Pad")
body.addObject(pad1)
pad1.Profile = sketch1
pad1.Length = 3

# Sketch on XY plane
sketch2 = doc.addObject("Sketcher::SketchObject", "Sketch001")
body.addObject(sketch2)
sketch2.AttachmentSupport = (doc.XY_Plane, [""])
sketch2.MapMode = "FlatFace"
sketch2.addGeometry(Part.Circle(App.Vector(0, 0, 0), App.Vector(0, 0, 1), 43.5), False)
sketch2.addGeometry(Part.Circle(App.Vector(0, 0, 0), App.Vector(0, 0, 1), 40.5), False)
sketch2.addConstraint(Sketcher.Constraint("Coincident", 0, 3, -1, 1))
sketch2.addConstraint(Sketcher.Constraint("Coincident", 1, 3, -1, 1))
sketch2.addConstraint(Sketcher.Constraint("Diameter", 0, 87.0))
sketch2.addConstraint(Sketcher.Constraint("Diameter", 1, 81.0))
pad2 = doc.addObject("PartDesign::Pad", "Pad001")
body.addObject(pad2)
pad2.Profile = sketch2
pad2.Length = 6

doc.recompute()
